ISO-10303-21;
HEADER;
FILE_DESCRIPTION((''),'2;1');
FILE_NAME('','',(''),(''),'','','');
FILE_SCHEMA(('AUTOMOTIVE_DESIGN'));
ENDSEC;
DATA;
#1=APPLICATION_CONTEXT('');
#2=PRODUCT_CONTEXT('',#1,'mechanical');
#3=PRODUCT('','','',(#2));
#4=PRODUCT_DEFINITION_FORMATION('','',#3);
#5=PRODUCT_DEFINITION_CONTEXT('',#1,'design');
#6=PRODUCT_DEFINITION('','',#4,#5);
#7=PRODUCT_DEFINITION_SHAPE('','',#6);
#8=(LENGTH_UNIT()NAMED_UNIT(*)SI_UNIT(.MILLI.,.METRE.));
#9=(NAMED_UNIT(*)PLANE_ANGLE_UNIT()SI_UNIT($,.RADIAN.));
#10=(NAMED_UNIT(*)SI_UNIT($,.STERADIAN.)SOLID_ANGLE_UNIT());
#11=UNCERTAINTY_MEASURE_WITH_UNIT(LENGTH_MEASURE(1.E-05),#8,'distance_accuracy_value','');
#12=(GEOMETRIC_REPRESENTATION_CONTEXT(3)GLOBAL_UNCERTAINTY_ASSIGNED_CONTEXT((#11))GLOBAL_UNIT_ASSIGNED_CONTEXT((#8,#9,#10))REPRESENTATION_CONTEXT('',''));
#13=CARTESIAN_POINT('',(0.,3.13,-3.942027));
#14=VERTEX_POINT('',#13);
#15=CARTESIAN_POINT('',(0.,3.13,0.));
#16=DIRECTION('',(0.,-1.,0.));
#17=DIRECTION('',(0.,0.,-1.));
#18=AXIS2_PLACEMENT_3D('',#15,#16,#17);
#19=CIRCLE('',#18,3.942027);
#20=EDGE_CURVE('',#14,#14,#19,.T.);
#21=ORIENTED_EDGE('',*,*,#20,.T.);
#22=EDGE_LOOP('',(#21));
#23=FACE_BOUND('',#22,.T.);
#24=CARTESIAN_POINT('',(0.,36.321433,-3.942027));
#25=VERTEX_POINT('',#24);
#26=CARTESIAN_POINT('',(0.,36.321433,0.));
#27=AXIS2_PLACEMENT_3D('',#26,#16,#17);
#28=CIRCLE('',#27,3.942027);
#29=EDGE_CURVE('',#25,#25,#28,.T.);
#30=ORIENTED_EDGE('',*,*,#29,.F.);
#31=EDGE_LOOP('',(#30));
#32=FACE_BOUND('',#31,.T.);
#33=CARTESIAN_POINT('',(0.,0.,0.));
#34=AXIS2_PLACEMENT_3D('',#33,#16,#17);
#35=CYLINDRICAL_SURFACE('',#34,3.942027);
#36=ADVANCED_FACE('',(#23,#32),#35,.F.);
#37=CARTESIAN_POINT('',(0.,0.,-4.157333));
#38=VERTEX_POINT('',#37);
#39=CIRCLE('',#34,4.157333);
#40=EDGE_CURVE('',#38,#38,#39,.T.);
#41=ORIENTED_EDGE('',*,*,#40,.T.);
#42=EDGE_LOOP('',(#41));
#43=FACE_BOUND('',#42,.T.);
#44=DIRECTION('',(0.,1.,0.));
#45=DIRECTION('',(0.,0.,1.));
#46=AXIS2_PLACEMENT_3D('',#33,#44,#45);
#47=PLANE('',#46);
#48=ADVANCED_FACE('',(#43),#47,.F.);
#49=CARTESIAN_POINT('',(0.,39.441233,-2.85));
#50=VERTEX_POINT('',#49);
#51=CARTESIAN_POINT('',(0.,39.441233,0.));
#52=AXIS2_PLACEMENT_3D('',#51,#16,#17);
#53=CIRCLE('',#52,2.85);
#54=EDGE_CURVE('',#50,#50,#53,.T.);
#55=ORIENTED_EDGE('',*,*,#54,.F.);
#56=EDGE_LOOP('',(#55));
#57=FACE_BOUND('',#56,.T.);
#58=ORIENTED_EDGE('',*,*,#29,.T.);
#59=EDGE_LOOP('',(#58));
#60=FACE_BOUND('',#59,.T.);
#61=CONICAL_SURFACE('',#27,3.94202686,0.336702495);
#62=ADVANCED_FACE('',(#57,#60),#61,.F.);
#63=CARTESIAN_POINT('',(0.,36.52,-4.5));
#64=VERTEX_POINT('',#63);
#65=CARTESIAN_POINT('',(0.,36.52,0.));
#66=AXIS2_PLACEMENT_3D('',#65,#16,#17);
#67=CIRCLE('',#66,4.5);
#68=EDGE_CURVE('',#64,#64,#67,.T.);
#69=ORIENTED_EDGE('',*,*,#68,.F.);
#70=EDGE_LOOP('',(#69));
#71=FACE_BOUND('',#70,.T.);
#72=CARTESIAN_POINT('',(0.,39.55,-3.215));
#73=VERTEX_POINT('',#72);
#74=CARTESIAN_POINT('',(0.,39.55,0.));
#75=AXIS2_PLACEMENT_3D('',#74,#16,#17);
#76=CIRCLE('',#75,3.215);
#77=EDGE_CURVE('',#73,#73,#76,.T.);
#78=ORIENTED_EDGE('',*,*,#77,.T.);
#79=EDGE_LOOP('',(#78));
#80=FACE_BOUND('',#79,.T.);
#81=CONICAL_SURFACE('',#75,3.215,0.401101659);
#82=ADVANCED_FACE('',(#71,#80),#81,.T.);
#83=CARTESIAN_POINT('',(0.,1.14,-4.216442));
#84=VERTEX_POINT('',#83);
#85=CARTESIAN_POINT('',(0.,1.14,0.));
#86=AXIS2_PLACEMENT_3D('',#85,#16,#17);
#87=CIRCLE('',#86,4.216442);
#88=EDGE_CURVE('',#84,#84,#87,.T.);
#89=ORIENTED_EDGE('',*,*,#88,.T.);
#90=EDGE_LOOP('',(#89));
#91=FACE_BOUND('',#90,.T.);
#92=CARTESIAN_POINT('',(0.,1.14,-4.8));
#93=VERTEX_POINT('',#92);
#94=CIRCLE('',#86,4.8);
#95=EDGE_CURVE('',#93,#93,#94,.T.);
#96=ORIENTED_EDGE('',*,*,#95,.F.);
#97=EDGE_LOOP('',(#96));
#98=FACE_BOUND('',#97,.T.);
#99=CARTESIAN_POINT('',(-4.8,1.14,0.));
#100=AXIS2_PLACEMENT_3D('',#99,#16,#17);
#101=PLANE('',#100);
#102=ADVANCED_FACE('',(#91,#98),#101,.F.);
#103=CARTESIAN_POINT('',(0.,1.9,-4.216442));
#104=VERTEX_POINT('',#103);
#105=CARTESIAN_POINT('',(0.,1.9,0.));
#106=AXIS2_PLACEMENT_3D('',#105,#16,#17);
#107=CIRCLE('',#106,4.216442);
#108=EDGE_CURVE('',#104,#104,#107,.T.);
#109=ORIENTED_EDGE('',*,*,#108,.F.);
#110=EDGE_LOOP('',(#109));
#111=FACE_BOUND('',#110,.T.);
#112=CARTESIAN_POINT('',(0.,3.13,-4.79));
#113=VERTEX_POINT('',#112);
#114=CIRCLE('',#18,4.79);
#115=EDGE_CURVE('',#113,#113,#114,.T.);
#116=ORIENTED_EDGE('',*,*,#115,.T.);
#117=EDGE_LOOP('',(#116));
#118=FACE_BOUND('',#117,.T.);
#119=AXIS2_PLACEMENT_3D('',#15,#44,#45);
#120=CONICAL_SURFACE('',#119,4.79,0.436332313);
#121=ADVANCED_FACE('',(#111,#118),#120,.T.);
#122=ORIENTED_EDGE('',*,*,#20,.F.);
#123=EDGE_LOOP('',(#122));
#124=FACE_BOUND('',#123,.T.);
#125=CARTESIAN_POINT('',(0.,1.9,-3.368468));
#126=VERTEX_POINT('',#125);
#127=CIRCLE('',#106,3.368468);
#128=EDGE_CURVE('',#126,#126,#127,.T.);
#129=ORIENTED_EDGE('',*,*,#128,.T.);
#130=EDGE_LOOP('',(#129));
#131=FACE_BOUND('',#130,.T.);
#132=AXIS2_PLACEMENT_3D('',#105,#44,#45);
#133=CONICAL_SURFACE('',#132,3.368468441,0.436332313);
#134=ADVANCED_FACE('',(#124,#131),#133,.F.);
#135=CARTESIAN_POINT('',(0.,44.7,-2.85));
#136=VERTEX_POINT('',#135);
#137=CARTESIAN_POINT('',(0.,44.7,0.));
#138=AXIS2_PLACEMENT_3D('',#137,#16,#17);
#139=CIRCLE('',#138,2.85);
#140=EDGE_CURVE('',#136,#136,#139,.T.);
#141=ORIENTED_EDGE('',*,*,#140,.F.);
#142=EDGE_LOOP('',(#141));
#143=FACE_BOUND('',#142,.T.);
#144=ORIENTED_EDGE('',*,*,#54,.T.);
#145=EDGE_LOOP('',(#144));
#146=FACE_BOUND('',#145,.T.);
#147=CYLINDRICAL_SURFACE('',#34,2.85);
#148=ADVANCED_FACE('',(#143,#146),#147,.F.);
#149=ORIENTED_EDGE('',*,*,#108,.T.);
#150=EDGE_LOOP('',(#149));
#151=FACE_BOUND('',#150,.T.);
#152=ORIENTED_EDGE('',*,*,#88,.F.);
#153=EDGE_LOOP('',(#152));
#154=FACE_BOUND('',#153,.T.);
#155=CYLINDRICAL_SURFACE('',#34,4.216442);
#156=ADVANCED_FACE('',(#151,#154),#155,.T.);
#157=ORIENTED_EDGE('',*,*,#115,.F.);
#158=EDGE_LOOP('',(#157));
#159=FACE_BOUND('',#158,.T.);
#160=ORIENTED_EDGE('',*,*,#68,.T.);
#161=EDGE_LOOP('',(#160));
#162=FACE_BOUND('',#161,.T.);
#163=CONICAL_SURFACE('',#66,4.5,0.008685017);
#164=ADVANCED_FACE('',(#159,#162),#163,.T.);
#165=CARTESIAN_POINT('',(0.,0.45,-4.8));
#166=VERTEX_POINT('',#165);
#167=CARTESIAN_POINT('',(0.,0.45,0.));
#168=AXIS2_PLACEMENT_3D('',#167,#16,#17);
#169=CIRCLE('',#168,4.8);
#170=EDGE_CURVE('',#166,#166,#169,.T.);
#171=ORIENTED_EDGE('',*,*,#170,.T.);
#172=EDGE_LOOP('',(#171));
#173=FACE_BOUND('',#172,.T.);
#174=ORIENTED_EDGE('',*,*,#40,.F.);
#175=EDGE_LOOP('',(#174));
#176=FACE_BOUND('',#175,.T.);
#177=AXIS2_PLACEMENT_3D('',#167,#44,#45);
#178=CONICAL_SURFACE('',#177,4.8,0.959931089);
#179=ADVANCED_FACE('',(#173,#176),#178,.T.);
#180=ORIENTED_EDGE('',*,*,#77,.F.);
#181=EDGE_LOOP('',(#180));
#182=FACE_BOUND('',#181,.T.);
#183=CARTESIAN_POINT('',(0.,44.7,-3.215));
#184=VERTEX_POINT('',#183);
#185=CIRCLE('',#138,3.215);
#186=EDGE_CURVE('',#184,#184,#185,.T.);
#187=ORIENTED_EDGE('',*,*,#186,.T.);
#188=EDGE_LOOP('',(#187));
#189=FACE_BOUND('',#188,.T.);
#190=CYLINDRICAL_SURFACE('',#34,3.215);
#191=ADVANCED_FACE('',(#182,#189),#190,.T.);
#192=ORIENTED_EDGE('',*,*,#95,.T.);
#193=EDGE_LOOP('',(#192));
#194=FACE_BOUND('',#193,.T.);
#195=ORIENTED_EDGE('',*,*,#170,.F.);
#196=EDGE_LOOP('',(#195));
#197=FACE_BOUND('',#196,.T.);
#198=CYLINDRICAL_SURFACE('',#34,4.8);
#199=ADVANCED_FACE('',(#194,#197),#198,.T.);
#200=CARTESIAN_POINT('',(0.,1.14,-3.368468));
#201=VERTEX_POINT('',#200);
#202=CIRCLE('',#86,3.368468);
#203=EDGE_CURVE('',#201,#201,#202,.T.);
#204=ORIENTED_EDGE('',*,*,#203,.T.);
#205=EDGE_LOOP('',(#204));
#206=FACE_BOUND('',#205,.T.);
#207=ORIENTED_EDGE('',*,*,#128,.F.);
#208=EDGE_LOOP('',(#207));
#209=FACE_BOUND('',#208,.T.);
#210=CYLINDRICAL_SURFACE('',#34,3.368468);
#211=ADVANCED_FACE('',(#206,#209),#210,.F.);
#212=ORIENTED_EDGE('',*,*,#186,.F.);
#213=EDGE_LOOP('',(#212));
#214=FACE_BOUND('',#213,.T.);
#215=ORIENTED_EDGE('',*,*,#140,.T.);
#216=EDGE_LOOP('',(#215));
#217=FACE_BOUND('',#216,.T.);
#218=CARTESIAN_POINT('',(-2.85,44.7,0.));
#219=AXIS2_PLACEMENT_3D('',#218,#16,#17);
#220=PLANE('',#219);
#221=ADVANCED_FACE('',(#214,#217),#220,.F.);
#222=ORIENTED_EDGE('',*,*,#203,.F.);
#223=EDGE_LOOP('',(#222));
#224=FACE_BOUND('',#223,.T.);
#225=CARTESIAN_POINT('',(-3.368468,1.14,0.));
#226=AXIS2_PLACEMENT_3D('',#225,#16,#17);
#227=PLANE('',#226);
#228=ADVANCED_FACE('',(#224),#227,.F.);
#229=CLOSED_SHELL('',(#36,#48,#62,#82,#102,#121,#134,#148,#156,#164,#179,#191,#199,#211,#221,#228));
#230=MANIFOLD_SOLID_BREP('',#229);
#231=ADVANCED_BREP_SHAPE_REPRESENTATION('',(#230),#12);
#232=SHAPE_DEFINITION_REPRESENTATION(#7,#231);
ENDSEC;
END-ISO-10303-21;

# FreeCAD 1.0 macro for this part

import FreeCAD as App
import Part
import Sketcher

V = App.Vector
Q = App.Units.Quantity

doc = App.newDocument("Part")
body = doc.addObject("PartDesign::Body", "Body")

sketch1 = body.newObject("Sketcher::SketchObject", "Sketch")
sketch1.AttachmentSupport = (doc.getObject("XY_Plane"), [""])
sketch1.MapMode = "FlatFace"
sketch1.addGeometry(Part.LineSegment(V(-2.85, 39.44, 0), V(-2.85, 44.7, 0)), False)
sketch1.addGeometry(Part.LineSegment(V(-2.85, 44.7, 0), V(-3.21, 44.7, 0)), False)
sketch1.addGeometry(Part.LineSegment(V(-3.21, 44.7, 0), V(-3.21, 39.55, 0)), False)
sketch1.addGeometry(Part.LineSegment(V(-3.21, 39.55, 0), V(-4.5, 36.52, 0)), False)
sketch1.addGeometry(Part.LineSegment(V(-4.5, 36.52, 0), V(-4.79, 3.13, 0)), False)
sketch1.addGeometry(Part.LineSegment(V(-4.79, 3.13, 0), V(-4.22, 1.9, 0)), False)
sketch1.addGeometry(Part.LineSegment(V(-4.22, 1.9, 0), V(-4.22, 1.14, 0)), False)
sketch1.addGeometry(Part.LineSegment(V(-4.22, 1.14, 0), V(-4.8, 1.14, 0)), False)
sketch1.addGeometry(Part.LineSegment(V(-4.8, 1.14, 0), V(-4.8, 0.45, 0)), False)
sketch1.addGeometry(Part.LineSegment(V(-4.8, 0.45, 0), V(-4.16, 0, 0)), False)
sketch1.addGeometry(Part.LineSegment(V(-4.16, 0, 0), V(0, 0, 0)), False)
sketch1.addGeometry(Part.LineSegment(V(0, 0, 0), V(0, 1.14, 0)), False)
sketch1.addGeometry(Part.LineSegment(V(0, 1.14, 0), V(-3.37, 1.14, 0)), False)
sketch1.addGeometry(Part.LineSegment(V(-3.37, 1.14, 0), V(-3.37, 1.9, 0)), False)
sketch1.addGeometry(Part.LineSegment(V(-3.37, 1.9, 0), V(-3.94, 3.13, 0)), False)
sketch1.addGeometry(Part.LineSegment(V(-3.94, 3.13, 0), V(-3.94, 36.32, 0)), False)
sketch1.addGeometry(Part.LineSegment(V(-3.94, 36.32, 0), V(-2.85, 39.44, 0)), False)
sketch1.addConstraint(Sketcher.Constraint("Coincident", 0, 2, 1, 1))
sketch1.addConstraint(Sketcher.Constraint("Coincident", 1, 2, 2, 1))
sketch1.addConstraint(Sketcher.Constraint("Coincident", 2, 2, 3, 1))
sketch1.addConstraint(Sketcher.Constraint("Coincident", 3, 2, 4, 1))
sketch1.addConstraint(Sketcher.Constraint("Coincident", 4, 2, 5, 1))
sketch1.addConstraint(Sketcher.Constraint("Coincident", 5, 2, 6, 1))
sketch1.addConstraint(Sketcher.Constraint("Coincident", 6, 2, 7, 1))
sketch1.addConstraint(Sketcher.Constraint("Coincident", 7, 2, 8, 1))
sketch1.addConstraint(Sketcher.Constraint("Coincident", 8, 2, 9, 1))
sketch1.addConstraint(Sketcher.Constraint("Coincident", 9, 2, 10, 1))
sketch1.addConstraint(Sketcher.Constraint("Coincident", 10, 2, 11, 1))
sketch1.addConstraint(Sketcher.Constraint("Coincident", 11, 2, 12, 1))
sketch1.addConstraint(Sketcher.Constraint("Coincident", 12, 2, 13, 1))
sketch1.addConstraint(Sketcher.Constraint("Coincident", 13, 2, 14, 1))
sketch1.addConstraint(Sketcher.Constraint("Coincident", 14, 2, 15, 1))
sketch1.addConstraint(Sketcher.Constraint("Coincident", 15, 2, 16, 1))
sketch1.addConstraint(Sketcher.Constraint("Coincident", 16, 2, 0, 1))
sketch1.addConstraint(Sketcher.Constraint("Vertical", 0))
sketch1.addConstraint(Sketcher.Constraint("Horizontal", 1))
sketch1.addConstraint(Sketcher.Constraint("Vertical", 2))
sketch1.addConstraint(Sketcher.Constraint("Vertical", 6))
sketch1.addConstraint(Sketcher.Constraint("Horizontal", 7))
sketch1.addConstraint(Sketcher.Constraint("Vertical", 8))
sketch1.addConstraint(Sketcher.Constraint("Horizontal", 10))
sketch1.addConstraint(Sketcher.Constraint("Vertical", 11))
sketch1.addConstraint(Sketcher.Constraint("Horizontal", 12))
sketch1.addConstraint(Sketcher.Constraint("Vertical", 13))
sketch1.addConstraint(Sketcher.Constraint("Vertical", 15))
sketch1.addConstraint(Sketcher.Constraint("Coincident", 10, 2, -1, 1))
sketch1.addConstraint(Sketcher.Constraint("Parallel", 5, 14))
sketch1.addConstraint(Sketcher.Constraint("Horizontal", 7, 2, 11, 2))
sketch1.addConstraint(Sketcher.Constraint("Horizontal", 5, 2, 13, 2))
sketch1.addConstraint(Sketcher.Constraint("Horizontal", 4, 2, 14, 2))
sketch1.addConstraint(Sketcher.Constraint("Angle", 5, Q("-65 deg")))
sketch1.addConstraint(Sketcher.Constraint("Angle", 9, Q("-35 deg")))
sketch1.addConstraint(Sketcher.Constraint("DistanceY", 2, 2, 2, 1, 5.15))
sketch1.addConstraint(Sketcher.Constraint("DistanceY", 6, 2, 6, 1, 0.76))
sketch1.addConstraint(Sketcher.Constraint("DistanceY", 8, 2, 8, 1, 0.69))
sketch1.addConstraint(Sketcher.Constraint("DistanceY", 11, 1, 11, 2, 1.14))
sketch1.addConstraint(Sketcher.Constraint("DistanceY", -1, 1, 0, 2, 44.7))
sketch1.addConstraint(Sketcher.Constraint("DistanceX", 3, 2, -1, 1, 4.5))
sketch1.addConstraint(Sketcher.Constraint("DistanceX", 7, 2, -1, 1, 4.8))
sketch1.addConstraint(Sketcher.Constraint("DistanceX", 1, 2, 1, 1, 0.365))
sketch1.addConstraint(Sketcher.Constraint("DistanceX", 0, 2, -1, 1, 2.85))
sketch1.addConstraint(Sketcher.Constraint("DistanceY", -1, 1, 3, 2, 36.52))
sketch1.addConstraint(Sketcher.Constraint("DistanceX", 4, 2, -1, 1, 4.79))
sketch1.addConstraint(Sketcher.Constraint("DistanceY", -1, 1, 4, 2, 3.13))
sketch1.addConstraint(Sketcher.Constraint("Distance", 16, 3.305401))
sketch1.addConstraint(Sketcher.Constraint("DistanceX", 12, 2, 12, 1, 3.368468))
sketch1.addConstraint(Sketcher.Constraint("DistanceY", 0, 1, 0, 2, 5.258767))
revolution = body.newObject("PartDesign::Revolution", "Revolution")
revolution.Profile = sketch1
revolution.ReferenceAxis = (sketch1, ["V_Axis"])
revolution.Angle = 360

doc.recompute()
